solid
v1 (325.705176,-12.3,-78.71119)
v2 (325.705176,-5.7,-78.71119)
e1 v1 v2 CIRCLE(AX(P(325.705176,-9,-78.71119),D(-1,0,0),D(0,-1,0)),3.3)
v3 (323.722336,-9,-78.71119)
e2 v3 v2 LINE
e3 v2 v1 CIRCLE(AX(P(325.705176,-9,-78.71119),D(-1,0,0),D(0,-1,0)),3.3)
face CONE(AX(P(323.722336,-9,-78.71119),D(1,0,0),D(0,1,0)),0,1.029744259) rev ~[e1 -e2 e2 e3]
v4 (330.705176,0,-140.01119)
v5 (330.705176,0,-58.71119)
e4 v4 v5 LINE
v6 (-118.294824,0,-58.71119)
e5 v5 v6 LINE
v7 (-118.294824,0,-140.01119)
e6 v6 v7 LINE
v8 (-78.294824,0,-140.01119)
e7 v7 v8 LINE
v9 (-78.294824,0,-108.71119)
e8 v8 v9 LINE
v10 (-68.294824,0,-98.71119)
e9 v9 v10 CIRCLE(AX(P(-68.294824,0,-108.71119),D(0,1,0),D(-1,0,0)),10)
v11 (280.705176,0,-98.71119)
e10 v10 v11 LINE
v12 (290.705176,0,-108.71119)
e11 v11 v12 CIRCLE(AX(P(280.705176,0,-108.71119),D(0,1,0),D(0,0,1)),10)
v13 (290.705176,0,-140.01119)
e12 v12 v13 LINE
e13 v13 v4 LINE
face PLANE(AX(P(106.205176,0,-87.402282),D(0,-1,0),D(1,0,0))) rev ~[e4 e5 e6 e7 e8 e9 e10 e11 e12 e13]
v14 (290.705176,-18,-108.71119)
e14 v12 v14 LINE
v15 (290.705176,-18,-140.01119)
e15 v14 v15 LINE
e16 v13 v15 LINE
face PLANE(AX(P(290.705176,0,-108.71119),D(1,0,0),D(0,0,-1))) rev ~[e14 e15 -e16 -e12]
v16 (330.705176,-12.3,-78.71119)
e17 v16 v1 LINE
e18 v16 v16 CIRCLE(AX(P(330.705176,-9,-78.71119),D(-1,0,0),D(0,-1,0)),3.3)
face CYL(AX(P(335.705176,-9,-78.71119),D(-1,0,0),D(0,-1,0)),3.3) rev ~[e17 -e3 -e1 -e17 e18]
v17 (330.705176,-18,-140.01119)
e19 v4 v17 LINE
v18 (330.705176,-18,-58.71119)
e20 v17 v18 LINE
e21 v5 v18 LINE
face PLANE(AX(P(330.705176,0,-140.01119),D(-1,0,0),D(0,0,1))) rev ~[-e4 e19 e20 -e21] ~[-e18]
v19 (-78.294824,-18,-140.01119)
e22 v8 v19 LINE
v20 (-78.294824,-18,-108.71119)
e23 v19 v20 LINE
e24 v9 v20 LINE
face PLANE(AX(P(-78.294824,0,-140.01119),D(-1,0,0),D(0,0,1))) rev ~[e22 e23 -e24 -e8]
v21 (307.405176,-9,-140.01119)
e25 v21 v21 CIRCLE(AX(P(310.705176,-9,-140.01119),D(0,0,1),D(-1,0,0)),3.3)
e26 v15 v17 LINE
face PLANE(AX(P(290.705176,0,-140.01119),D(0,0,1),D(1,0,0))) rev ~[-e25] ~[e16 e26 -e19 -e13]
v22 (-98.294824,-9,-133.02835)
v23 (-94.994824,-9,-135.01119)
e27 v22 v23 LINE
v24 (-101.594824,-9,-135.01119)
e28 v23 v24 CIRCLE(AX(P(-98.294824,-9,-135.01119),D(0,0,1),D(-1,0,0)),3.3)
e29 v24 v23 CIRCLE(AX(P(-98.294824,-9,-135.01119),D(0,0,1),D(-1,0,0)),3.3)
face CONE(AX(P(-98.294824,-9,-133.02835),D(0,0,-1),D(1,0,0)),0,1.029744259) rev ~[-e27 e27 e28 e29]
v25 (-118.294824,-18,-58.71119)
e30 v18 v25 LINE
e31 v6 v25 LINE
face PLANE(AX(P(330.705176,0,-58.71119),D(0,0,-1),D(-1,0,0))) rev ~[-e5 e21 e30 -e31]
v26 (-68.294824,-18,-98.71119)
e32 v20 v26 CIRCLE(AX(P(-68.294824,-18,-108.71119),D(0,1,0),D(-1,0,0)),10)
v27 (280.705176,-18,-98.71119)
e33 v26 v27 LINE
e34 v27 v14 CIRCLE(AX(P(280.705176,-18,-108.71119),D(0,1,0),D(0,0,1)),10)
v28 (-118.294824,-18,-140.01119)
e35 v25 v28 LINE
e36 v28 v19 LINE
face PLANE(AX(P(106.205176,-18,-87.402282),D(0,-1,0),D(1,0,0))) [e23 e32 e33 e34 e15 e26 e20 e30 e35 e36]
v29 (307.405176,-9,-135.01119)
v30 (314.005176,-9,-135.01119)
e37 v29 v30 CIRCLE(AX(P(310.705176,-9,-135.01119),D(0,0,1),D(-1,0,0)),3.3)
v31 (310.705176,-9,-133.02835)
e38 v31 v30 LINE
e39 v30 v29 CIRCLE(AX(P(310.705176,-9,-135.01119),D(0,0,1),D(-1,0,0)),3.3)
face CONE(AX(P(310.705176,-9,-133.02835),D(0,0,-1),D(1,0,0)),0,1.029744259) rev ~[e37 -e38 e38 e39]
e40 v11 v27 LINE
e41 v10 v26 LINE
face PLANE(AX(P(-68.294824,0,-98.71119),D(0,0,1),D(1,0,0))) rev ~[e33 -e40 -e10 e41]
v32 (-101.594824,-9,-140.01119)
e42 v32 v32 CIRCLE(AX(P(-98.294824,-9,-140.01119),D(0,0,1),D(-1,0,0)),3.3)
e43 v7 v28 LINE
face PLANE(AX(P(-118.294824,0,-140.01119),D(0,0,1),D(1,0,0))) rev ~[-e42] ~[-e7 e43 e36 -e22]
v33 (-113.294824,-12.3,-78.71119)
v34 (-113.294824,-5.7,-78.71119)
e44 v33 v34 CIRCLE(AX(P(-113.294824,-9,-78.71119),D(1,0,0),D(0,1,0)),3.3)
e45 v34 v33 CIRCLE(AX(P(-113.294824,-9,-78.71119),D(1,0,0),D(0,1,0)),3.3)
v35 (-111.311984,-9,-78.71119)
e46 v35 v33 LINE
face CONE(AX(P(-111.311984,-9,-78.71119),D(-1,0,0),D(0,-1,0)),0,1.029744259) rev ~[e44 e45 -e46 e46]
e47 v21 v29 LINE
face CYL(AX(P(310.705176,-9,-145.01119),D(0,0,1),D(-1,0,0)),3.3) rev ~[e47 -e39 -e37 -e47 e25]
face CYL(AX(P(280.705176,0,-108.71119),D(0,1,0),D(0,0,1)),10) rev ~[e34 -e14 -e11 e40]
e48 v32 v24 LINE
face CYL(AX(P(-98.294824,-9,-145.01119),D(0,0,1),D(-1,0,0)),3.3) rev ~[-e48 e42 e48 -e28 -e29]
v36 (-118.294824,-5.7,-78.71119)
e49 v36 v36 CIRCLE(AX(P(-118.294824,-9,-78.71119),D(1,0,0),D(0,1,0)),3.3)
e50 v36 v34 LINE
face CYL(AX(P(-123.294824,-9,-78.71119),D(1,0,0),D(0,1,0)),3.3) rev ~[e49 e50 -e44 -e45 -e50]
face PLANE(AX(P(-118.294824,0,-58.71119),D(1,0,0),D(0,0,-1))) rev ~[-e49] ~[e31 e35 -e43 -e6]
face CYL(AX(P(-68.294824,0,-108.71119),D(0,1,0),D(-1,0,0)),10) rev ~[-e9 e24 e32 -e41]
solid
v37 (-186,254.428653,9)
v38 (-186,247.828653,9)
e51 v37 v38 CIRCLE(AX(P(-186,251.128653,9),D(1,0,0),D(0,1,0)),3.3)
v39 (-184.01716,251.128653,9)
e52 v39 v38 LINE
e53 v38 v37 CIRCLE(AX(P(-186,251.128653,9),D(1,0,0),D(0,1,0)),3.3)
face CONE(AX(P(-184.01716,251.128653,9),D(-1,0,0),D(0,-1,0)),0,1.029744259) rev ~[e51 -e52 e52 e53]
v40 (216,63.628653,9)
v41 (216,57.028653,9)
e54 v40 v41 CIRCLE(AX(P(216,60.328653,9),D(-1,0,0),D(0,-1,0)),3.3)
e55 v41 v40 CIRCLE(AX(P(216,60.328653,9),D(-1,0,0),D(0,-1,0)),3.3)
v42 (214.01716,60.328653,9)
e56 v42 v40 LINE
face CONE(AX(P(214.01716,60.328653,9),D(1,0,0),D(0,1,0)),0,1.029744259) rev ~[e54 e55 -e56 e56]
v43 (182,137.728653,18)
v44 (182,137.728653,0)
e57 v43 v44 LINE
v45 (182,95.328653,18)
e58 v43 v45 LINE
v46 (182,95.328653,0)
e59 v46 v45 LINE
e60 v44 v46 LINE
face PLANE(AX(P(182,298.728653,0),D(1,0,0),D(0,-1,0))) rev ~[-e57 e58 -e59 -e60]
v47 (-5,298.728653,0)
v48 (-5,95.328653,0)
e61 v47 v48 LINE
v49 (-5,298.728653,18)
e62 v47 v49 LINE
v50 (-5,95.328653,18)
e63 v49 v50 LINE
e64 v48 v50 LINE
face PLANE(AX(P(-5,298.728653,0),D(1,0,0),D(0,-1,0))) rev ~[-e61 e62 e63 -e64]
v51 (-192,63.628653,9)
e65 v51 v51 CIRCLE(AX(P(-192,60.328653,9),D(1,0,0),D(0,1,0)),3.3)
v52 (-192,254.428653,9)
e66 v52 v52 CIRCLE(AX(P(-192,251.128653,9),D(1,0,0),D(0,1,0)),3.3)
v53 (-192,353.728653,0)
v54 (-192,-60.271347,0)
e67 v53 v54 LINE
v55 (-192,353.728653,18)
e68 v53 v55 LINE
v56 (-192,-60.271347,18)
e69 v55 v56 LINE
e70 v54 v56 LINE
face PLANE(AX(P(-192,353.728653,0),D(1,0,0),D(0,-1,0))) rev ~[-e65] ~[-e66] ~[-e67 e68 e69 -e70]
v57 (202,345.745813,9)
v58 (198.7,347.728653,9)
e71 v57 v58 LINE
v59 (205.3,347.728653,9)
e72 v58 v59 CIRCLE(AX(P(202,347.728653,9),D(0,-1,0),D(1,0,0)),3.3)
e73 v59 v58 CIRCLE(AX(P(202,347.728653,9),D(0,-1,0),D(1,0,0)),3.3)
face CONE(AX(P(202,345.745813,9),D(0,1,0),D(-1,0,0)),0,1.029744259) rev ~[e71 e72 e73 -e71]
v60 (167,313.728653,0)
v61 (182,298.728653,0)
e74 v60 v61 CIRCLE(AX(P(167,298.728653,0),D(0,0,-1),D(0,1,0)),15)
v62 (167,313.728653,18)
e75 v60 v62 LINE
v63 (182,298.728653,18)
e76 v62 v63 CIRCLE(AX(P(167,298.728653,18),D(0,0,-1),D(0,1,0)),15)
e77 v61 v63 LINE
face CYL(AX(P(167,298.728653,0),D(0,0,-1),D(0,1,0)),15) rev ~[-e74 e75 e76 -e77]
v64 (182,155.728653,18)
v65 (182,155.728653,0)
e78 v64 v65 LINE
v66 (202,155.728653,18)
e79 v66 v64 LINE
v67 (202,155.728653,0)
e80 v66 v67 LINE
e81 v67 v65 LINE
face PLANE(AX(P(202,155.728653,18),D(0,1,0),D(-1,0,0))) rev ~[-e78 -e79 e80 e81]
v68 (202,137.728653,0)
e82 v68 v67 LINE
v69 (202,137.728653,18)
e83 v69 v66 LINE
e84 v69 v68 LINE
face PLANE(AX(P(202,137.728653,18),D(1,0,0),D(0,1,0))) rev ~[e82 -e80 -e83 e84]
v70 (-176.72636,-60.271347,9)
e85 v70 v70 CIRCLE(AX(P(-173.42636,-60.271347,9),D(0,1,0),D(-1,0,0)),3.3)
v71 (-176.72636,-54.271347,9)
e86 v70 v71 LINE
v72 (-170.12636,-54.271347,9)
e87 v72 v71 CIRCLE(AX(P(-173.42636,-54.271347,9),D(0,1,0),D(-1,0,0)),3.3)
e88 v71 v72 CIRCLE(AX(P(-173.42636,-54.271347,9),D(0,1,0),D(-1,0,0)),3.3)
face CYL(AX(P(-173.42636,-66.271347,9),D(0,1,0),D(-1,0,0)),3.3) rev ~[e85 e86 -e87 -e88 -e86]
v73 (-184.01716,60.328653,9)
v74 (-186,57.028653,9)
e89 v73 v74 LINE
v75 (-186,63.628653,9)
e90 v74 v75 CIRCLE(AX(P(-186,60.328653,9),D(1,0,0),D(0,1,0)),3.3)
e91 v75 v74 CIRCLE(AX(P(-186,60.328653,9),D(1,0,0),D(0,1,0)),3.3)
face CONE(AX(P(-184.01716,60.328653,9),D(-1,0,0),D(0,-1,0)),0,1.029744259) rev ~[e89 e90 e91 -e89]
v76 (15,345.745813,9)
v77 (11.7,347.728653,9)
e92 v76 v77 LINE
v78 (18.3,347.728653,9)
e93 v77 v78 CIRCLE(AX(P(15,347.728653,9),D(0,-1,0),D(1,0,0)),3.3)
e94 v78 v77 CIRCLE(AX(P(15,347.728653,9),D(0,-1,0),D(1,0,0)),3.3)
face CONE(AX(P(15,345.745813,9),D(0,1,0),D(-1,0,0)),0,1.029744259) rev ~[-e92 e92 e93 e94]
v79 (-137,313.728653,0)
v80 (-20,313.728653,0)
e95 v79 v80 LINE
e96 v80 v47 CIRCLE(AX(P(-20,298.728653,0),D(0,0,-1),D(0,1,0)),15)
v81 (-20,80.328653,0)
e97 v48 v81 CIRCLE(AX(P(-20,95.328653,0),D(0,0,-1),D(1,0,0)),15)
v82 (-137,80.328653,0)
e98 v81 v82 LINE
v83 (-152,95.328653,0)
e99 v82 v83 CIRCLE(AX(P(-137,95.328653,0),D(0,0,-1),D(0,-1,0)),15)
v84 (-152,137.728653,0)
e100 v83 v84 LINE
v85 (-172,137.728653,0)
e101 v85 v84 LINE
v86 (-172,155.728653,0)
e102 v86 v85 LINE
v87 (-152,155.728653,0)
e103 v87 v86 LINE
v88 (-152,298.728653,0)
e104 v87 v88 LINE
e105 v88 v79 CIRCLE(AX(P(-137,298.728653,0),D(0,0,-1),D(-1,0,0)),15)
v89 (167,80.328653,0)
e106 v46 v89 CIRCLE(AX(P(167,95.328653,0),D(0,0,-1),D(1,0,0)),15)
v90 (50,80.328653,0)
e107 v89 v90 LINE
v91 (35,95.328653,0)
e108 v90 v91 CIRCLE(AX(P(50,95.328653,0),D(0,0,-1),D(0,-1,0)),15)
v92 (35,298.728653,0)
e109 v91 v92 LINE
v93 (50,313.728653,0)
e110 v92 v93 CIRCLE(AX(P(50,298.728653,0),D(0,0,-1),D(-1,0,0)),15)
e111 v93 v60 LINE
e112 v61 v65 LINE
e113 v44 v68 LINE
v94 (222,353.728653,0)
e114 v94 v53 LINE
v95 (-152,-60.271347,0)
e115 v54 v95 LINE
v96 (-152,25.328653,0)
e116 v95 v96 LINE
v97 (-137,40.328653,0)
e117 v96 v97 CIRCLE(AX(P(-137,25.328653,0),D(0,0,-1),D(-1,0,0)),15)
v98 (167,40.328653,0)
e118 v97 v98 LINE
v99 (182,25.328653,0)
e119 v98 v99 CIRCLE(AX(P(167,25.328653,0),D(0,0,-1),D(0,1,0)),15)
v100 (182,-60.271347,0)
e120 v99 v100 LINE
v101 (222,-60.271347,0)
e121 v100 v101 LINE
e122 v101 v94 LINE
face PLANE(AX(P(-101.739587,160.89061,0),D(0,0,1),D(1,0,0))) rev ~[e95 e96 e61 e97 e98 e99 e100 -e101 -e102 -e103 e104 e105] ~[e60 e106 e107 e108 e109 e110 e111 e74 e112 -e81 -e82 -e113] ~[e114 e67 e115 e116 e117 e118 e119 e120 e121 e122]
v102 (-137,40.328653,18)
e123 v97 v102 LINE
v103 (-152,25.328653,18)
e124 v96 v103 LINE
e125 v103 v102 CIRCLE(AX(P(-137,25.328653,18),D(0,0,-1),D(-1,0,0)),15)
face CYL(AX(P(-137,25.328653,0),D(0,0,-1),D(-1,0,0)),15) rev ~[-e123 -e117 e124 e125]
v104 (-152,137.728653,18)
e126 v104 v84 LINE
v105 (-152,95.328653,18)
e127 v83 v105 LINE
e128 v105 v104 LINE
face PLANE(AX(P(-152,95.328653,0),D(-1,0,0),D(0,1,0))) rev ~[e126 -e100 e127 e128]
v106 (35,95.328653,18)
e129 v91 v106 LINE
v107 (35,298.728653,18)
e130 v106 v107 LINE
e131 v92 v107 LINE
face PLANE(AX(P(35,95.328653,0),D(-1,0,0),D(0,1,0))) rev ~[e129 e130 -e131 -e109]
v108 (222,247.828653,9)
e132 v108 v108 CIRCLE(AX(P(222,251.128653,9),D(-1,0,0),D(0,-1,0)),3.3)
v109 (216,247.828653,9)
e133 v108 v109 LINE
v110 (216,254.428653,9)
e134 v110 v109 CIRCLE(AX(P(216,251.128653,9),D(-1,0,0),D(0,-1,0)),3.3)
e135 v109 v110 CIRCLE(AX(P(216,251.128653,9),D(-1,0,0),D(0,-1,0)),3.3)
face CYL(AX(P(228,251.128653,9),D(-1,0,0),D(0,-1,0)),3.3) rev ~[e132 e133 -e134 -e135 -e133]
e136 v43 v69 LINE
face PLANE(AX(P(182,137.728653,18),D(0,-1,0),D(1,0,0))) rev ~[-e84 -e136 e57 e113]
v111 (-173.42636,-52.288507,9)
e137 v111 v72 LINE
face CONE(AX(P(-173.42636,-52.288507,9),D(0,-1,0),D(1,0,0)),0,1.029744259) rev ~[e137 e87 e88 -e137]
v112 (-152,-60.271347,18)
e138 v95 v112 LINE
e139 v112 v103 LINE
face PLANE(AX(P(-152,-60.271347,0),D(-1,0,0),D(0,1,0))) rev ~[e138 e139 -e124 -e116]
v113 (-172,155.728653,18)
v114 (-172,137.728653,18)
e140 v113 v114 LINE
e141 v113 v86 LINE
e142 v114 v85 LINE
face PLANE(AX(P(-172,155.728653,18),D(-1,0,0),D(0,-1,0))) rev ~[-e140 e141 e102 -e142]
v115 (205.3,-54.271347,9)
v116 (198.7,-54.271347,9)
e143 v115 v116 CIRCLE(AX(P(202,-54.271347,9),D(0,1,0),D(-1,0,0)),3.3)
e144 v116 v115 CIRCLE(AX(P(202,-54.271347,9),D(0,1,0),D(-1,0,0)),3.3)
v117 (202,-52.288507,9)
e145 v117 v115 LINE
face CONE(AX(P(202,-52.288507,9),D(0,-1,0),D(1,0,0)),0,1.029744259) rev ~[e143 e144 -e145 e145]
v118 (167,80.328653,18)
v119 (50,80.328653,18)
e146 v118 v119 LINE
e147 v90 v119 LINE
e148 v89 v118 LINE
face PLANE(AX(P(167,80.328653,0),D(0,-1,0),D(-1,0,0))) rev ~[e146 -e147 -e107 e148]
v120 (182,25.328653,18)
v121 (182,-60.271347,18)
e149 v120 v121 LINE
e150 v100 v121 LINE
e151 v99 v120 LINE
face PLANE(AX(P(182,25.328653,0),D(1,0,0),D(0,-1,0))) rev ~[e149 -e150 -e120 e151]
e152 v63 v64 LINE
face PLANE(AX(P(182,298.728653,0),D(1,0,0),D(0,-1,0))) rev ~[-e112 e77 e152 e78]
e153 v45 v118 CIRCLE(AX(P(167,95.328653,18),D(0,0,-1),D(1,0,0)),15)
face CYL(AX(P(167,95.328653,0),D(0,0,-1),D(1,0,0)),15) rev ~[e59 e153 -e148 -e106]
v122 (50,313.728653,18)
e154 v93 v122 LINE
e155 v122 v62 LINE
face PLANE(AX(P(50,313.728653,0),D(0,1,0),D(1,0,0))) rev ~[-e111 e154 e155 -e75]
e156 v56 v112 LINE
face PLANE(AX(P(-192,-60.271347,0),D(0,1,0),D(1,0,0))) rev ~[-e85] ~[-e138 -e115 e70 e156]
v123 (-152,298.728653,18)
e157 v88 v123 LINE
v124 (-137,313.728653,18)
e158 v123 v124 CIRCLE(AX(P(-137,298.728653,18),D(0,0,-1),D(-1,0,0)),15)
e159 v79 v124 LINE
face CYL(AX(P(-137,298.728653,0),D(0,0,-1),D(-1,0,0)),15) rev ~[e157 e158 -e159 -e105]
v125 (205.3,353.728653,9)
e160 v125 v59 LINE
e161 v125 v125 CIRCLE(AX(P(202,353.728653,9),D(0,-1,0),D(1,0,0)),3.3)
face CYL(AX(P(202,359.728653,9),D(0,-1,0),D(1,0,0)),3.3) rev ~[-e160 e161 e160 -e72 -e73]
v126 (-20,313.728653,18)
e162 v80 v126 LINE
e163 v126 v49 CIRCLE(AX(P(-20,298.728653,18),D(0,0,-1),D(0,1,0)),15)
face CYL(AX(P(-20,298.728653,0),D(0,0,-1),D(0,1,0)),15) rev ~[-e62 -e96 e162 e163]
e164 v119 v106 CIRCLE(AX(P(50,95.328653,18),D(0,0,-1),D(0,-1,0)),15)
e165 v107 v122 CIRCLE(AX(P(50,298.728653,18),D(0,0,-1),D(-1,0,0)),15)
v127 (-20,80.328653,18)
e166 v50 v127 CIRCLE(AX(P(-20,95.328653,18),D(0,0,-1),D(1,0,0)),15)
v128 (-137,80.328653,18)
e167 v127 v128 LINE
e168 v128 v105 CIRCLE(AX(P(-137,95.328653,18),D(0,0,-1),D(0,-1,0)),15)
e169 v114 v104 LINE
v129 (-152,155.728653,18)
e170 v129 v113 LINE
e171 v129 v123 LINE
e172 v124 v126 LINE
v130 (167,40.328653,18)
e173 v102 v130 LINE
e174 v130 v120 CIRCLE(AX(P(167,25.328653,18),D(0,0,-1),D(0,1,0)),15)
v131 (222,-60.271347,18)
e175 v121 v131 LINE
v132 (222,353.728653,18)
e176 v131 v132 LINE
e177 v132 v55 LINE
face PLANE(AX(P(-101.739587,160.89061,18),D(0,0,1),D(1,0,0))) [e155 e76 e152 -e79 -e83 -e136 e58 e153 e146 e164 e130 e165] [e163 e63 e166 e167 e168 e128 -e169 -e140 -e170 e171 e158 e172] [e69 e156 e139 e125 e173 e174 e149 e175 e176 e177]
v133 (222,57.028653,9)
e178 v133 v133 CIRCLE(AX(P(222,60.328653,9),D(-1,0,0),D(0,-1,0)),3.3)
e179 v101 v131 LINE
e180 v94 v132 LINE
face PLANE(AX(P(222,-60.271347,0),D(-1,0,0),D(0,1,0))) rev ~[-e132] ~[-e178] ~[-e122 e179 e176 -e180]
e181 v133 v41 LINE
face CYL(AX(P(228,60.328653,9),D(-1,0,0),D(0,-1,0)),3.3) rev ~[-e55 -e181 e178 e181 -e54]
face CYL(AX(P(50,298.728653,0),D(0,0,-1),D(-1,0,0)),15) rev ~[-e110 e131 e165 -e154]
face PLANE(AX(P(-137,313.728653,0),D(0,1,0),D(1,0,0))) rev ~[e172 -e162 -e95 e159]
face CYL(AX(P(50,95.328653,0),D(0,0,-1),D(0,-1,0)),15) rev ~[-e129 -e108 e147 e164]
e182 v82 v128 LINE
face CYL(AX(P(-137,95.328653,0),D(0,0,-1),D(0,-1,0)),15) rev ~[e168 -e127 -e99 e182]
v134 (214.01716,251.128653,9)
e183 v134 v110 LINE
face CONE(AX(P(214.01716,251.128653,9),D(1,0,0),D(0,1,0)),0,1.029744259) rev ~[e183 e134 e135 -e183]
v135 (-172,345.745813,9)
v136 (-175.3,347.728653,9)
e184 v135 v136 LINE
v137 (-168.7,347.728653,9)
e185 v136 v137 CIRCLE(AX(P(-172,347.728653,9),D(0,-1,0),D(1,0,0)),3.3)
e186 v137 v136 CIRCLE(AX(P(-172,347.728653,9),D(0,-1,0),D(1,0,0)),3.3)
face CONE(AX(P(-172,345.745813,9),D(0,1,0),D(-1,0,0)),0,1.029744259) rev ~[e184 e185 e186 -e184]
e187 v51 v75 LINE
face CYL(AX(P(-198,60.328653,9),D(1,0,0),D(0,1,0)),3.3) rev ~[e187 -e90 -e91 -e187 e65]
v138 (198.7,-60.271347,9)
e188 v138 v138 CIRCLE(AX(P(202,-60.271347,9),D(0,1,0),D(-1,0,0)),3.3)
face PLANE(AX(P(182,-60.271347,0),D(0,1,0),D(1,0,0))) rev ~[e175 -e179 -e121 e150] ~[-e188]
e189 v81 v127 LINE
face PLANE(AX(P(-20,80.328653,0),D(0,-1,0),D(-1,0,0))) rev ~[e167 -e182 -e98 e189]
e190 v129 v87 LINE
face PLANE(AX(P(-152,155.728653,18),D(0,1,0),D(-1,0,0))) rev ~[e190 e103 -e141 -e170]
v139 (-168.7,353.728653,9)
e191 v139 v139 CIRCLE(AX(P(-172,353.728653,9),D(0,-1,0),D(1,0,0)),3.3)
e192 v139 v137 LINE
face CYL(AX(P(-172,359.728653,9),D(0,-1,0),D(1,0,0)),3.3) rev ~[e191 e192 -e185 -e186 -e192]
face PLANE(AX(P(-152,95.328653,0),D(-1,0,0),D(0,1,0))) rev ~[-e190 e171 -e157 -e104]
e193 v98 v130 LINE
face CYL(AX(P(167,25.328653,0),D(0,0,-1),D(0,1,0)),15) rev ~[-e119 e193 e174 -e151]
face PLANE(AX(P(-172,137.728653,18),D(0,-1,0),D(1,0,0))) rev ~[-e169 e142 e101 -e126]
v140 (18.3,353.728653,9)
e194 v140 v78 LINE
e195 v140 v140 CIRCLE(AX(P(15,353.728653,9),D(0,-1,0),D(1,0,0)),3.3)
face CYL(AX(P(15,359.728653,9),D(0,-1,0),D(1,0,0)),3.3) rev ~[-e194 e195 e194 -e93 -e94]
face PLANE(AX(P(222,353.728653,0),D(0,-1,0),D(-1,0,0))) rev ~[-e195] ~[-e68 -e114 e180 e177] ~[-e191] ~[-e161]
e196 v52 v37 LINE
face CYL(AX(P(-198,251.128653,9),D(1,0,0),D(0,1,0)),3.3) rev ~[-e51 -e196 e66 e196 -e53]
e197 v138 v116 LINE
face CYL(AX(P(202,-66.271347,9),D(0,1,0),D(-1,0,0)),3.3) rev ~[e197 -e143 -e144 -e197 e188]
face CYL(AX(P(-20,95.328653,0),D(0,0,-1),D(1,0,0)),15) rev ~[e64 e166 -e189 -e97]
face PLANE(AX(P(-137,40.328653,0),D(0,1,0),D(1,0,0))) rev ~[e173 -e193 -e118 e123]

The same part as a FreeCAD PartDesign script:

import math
import FreeCAD as App
import Part
import Sketcher

V = App.Vector


def add_polygon(sketch, points):
    """Adds a closed chain of lines whose ends are joined by coincident constraints."""
    first, n = sketch.GeometryCount, len(points)
    for a, b in zip(points, points[1:] + points[:1]):
        sketch.addGeometry(Part.LineSegment(App.Vector(*a, 0), App.Vector(*b, 0)), False)
    for i in range(n):
        sketch.addConstraint(Sketcher.Constraint("Coincident", first + i, 2, first + (i + 1) % n, 1))

doc = App.newDocument("Part")
params = doc.addObject("Spreadsheet::Sheet", "Params")
for row, (alias, value) in enumerate([
    ("sketch1_radius", "15 mm"),
    ("sketch1_width", "40 mm"),
    ("sketch1_width2", "304 mm"),
    ("sketch1_width3", "117 mm"),
    ("sketch1_height", "85.6 mm"),
    ("pad1_length", "18 mm"),
    ("sketch2_diameter", "6.6 mm"),
    ("hole_diameter", "6.6 mm"),
    ("hole_depth", "6 mm"),
    ("sketch3_diameter", "6.6 mm"),
    ("hole2_diameter", "6.6 mm"),
    ("hole2_depth", "6 mm"),
    ("sketch4_diameter", "6.6 mm"),
    ("hole3_diameter", "6.6 mm"),
    ("hole3_depth", "6 mm"),
    ("sketch5_diameter", "6.6 mm"),
    ("hole4_diameter", "6.6 mm"),
    ("hole4_depth", "6 mm"),
    ("sketch6_width", "20 mm"),
    ("sketch6_height", "18 mm"),
    ("pocket1_length", "18 mm"),
    ("sketch7_radius", "10 mm"),
    ("sketch7_width", "449 mm"),
    ("sketch7_width2", "40 mm"),
    ("sketch7_height", "81.3 mm"),
    ("sketch7_height2", "31.3 mm"),
    ("pad2_length", "18 mm"),
    ("sketch8_diameter", "6.6 mm"),
    ("hole5_diameter", "6.6 mm"),
    ("hole5_depth", "5 mm"),
    ("sketch9_diameter", "6.6 mm"),
    ("hole6_diameter", "6.6 mm"),
    ("hole6_depth", "5 mm"),
    ("sketch10_diameter", "6.6 mm"),
    ("hole7_diameter", "6.6 mm"),
    ("hole7_depth", "5 mm"),
    ("sketch11_diameter", "6.6 mm"),
    ("hole8_diameter", "6.6 mm"),
    ("hole8_depth", "5 mm"),
], start=1):
    params.set(f"A{row}", alias)
    params.set(f"B{row}", "=" + value)
    params.setAlias(f"B{row}", alias)

body = doc.addObject("PartDesign::Body", "Body")

# Sketch on XY plane
sketch1 = body.newObject("Sketcher::SketchObject", "Sketch")
sketch1.AttachmentSupport = (doc.getObject("XY_Plane"), [""])
sketch1.MapMode = "FlatFace"
sketch1.addGeometry([
    Part.LineSegment(V(-192, 353.728653, 0), V(-192, -60.271347, 0)),  # 0
    Part.LineSegment(V(-192, -60.271347, 0), V(-152, -60.271347, 0)),  # 1
    Part.LineSegment(V(-152, -60.271347, 0), V(-152, 25.328653, 0)),  # 2
    Part.ArcOfCircle(Part.Circle(V(-137, 25.328653, 0), V(0, 0, 1), 15), math.radians(90), math.radians(180)),  # 3
    Part.LineSegment(V(-137, 40.328653, 0), V(167, 40.328653, 0)),  # 4
    Part.ArcOfCircle(Part.Circle(V(167, 25.328653, 0), V(0, 0, 1), 15), math.radians(0), math.radians(90)),  # 5
    Part.LineSegment(V(182, 25.328653, 0), V(182, -60.271347, 0)),  # 6
    Part.LineSegment(V(182, -60.271347, 0), V(222, -60.271347, 0)),  # 7
    Part.LineSegment(V(222, -60.271347, 0), V(222, 353.728653, 0)),  # 8
    Part.LineSegment(V(222, 353.728653, 0), V(-192, 353.728653, 0)),  # 9
    Part.LineSegment(V(-137, 313.728653, 0), V(-20, 313.728653, 0)),  # 10
    Part.ArcOfCircle(Part.Circle(V(-20, 298.728653, 0), V(0, 0, 1), 15), math.radians(0), math.radians(90)),  # 11
    Part.LineSegment(V(-5, 298.728653, 0), V(-5, 95.328653, 0)),  # 12
    Part.ArcOfCircle(Part.Circle(V(-20, 95.328653, 0), V(0, 0, 1), 15), math.radians(-90), math.radians(0)),  # 13
    Part.LineSegment(V(-20, 80.328653, 0), V(-137, 80.328653, 0)),  # 14
    Part.ArcOfCircle(Part.Circle(V(-137, 95.328653, 0), V(0, 0, 1), 15), math.radians(180), math.radians(270)),  # 15
    Part.LineSegment(V(-152, 95.328653, 0), V(-152, 298.728653, 0)),  # 16
    Part.ArcOfCircle(Part.Circle(V(-137, 298.728653, 0), V(0, 0, 1), 15), math.radians(90), math.radians(180)),  # 17
    Part.LineSegment(V(35, 95.328653, 0), V(35, 298.728653, 0)),  # 18
    Part.ArcOfCircle(Part.Circle(V(50, 298.728653, 0), V(0, 0, 1), 15), math.radians(90), math.radians(180)),  # 19
    Part.LineSegment(V(50, 313.728653, 0), V(167, 313.728653, 0)),  # 20
    Part.ArcOfCircle(Part.Circle(V(167, 298.728653, 0), V(0, 0, 1), 15), math.radians(0), math.radians(90)),  # 21
    Part.LineSegment(V(182, 298.728653, 0), V(182, 95.328653, 0)),  # 22
    Part.ArcOfCircle(Part.Circle(V(167, 95.328653, 0), V(0, 0, 1), 15), math.radians(-90), math.radians(0)),  # 23
    Part.LineSegment(V(167, 80.328653, 0), V(50, 80.328653, 0)),  # 24
    Part.ArcOfCircle(Part.Circle(V(50, 95.328653, 0), V(0, 0, 1), 15), math.radians(180), math.radians(270)),  # 25
], False)
sketch1.addConstraint([
    Sketcher.Constraint("Coincident", 0, 2, 1, 1),
    Sketcher.Constraint("Coincident", 1, 2, 2, 1),
    Sketcher.Constraint("Tangent", 2, 2, 3, 2),
    Sketcher.Constraint("Tangent", 3, 1, 4, 1),
    Sketcher.Constraint("Tangent", 4, 2, 5, 2),
    Sketcher.Constraint("Tangent", 5, 1, 6, 1),
    Sketcher.Constraint("Coincident", 6, 2, 7, 1),
    Sketcher.Constraint("Coincident", 7, 2, 8, 1),
    Sketcher.Constraint("Coincident", 8, 2, 9, 1),
    Sketcher.Constraint("Coincident", 9, 2, 0, 1),
    Sketcher.Constraint("Tangent", 10, 2, 11, 2),
    Sketcher.Constraint("Tangent", 11, 1, 12, 1),
    Sketcher.Constraint("Tangent", 12, 2, 13, 2),
    Sketcher.Constraint("Tangent", 13, 1, 14, 1),
    Sketcher.Constraint("Tangent", 14, 2, 15, 2),
    Sketcher.Constraint("Tangent", 15, 1, 16, 1),
    Sketcher.Constraint("Tangent", 16, 2, 17, 2),
    Sketcher.Constraint("Tangent", 17, 1, 10, 1),
    Sketcher.Constraint("Tangent", 18, 2, 19, 2),
    Sketcher.Constraint("Tangent", 19, 1, 20, 1),
    Sketcher.Constraint("Tangent", 20, 2, 21, 2),
    Sketcher.Constraint("Tangent", 21, 1, 22, 1),
    Sketcher.Constraint("Tangent", 22, 2, 23, 2),
    Sketcher.Constraint("Tangent", 23, 1, 24, 1),
    Sketcher.Constraint("Tangent", 24, 2, 25, 2),
    Sketcher.Constraint("Tangent", 25, 1, 18, 1),
    Sketcher.Constraint("Vertical", 0),
    Sketcher.Constraint("Horizontal", 1),
    Sketcher.Constraint("Vertical", 2),
    Sketcher.Constraint("Horizontal", 4),
    Sketcher.Constraint("Vertical", 6),
    Sketcher.Constraint("Horizontal", 7),
    Sketcher.Constraint("Vertical", 8),
    Sketcher.Constraint("Horizontal", 9),
    Sketcher.Constraint("Horizontal", 10),
    Sketcher.Constraint("Vertical", 12),
    Sketcher.Constraint("Horizontal", 14),
    Sketcher.Constraint("Vertical", 16),
    Sketcher.Constraint("Vertical", 18),
    Sketcher.Constraint("Horizontal", 20),
    Sketcher.Constraint("Vertical", 22),
    Sketcher.Constraint("Horizontal", 24),
    Sketcher.Constraint("Equal", 3, 5),
    Sketcher.Constraint("Equal", 5, 11),
    Sketcher.Constraint("Equal", 11, 13),
    Sketcher.Constraint("Equal", 13, 15),
    Sketcher.Constraint("Equal", 15, 17),
    Sketcher.Constraint("Equal", 17, 19),
    Sketcher.Constraint("Equal", 19, 21),
    Sketcher.Constraint("Equal", 21, 23),
    Sketcher.Constraint("Equal", 23, 25),
    Sketcher.Constraint("Horizontal", 17, 3, 19, 3),
    Sketcher.Constraint("Horizontal", 15, 3, 23, 3),
    Sketcher.Constraint("Horizontal", 1, 2, 6, 2),
    Sketcher.Constraint("Vertical", 3, 3, 15, 3),
    Sketcher.Constraint("Vertical", 5, 3, 21, 3),
    Sketcher.Constraint("Equal", 1, 7),
    Sketcher.Constraint("Equal", 14, 20),
    Sketcher.Constraint("Equal", 9, 0),
    Sketcher.Constraint("Radius", 3, 15.0),
    Sketcher.Constraint("DistanceX", 1, 1, 1, 2, 40.0),
    Sketcher.Constraint("DistanceX", 4, 1, 4, 2, 304.0),
    Sketcher.Constraint("DistanceX", 10, 1, 10, 2, 117.0),
    Sketcher.Constraint("DistanceY", 2, 1, 2, 2, 85.6),
    Sketcher.Constraint("DistanceY", 12, 2, 12, 1, 203.4),
    Sketcher.Constraint("DistanceX", 3, 3, -1, 1, 137.0),
    Sketcher.Constraint("DistanceY", 3, 3, 13, 3, 70.0),
    Sketcher.Constraint("DistanceY", -1, 1, 3, 3, 25.328653),
])
sketch1.setExpression("Constraints[59]", "Params.sketch1_radius")
sketch1.setExpression("Constraints[60]", "Params.sketch1_width")
sketch1.setExpression("Constraints[61]", "Params.sketch1_width2")
sketch1.setExpression("Constraints[62]", "Params.sketch1_width3")
sketch1.setExpression("Constraints[63]", "Params.sketch1_height")
pad1 = body.newObject("PartDesign::Pad", "Pad")
pad1.Profile = sketch1
pad1.setExpression("Length", "Params.pad1_length")

# Sketch on XZ plane
sketch2 = body.newObject("Sketcher::SketchObject", "Sketch001")
sketch2.AttachmentSupport = (doc.getObject("XZ_Plane"), [""])
sketch2.MapMode = "FlatFace"
sketch2.AttachmentOffset = App.Placement(V(0, 0, 60.271347), App.Rotation())
sketch2.addGeometry([
    Part.Circle(V(202, 9, 0), V(0, 0, 1), 3.3),
    Part.Circle(V(-173.42636, 9, 0), V(0, 0, 1), 3.3),
], False)
sketch2.addConstraint([
    Sketcher.Constraint("Equal", 0, 1),
    Sketcher.Constraint("Horizontal", 0, 3, 1, 3),
    Sketcher.Constraint("Diameter", 0, 6.6),
    Sketcher.Constraint("DistanceX", -1, 1, 0, 3, 202.0),
    Sketcher.Constraint("DistanceY", -1, 1, 0, 3, 9.0),
    Sketcher.Constraint("DistanceX", 1, 3, -1, 1, 173.42636),
])
sketch2.setExpression("Constraints[2]", "Params.sketch2_diameter")
doc.recompute()
hole = body.newObject("PartDesign::Hole", "Hole")
hole.Profile = sketch2
hole.ThreadType = "None"
hole.setExpression("Diameter", "Params.hole_diameter")
hole.DepthType = "Dimension"
hole.setExpression("Depth", "Params.hole_depth")
hole.DrillPoint = "Angled"
hole.DrillPointAngle = 118

# Sketch on YZ plane
sketch3 = body.newObject("Sketcher::SketchObject", "Sketch002")
sketch3.AttachmentSupport = (doc.getObject("YZ_Plane"), [""])
sketch3.MapMode = "FlatFace"
sketch3.AttachmentOffset = App.Placement(V(0, 0, -192), App.Rotation())
sketch3.addGeometry([
    Part.Circle(V(60.328653, 9, 0), V(0, 0, 1), 3.3),
    Part.Circle(V(251.128653, 9, 0), V(0, 0, 1), 3.3),
], False)
sketch3.addConstraint([
    Sketcher.Constraint("Equal", 0, 1),
    Sketcher.Constraint("Horizontal", 0, 3, 1, 3),
    Sketcher.Constraint("Diameter", 0, 6.6),
    Sketcher.Constraint("DistanceY", -1, 1, 0, 3, 9.0),
    Sketcher.Constraint("DistanceX", 0, 3, 1, 3, 190.8),
    Sketcher.Constraint("DistanceX", -1, 1, 0, 3, 60.328653),
])
sketch3.setExpression("Constraints[2]", "Params.sketch3_diameter")
doc.recompute()
hole2 = body.newObject("PartDesign::Hole", "Hole001")
hole2.Profile = sketch3
hole2.ThreadType = "None"
hole2.setExpression("Diameter", "Params.hole2_diameter")
hole2.DepthType = "Dimension"
hole2.setExpression("Depth", "Params.hole2_depth")
hole2.DrillPoint = "Angled"
hole2.DrillPointAngle = 118
hole2.Reversed = True

# Sketch on XZ plane
sketch4 = body.newObject("Sketcher::SketchObject", "Sketch003")
sketch4.AttachmentSupport = (doc.getObject("XZ_Plane"), [""])
sketch4.MapMode = "FlatFace"
sketch4.AttachmentOffset = App.Placement(V(0, 0, -353.728653), App.Rotation())
sketch4.addGeometry([
    Part.Circle(V(-172, 9, 0), V(0, 0, 1), 3.3),
    Part.Circle(V(15, 9, 0), V(0, 0, 1), 3.3),
    Part.Circle(V(202, 9, 0), V(0, 0, 1), 3.3),
], False)
sketch4.addConstraint([
    Sketcher.Constraint("Equal", 0, 1),
    Sketcher.Constraint("Equal", 1, 2),
    Sketcher.Constraint("Horizontal", 0, 3, 1, 3),
    Sketcher.Constraint("Horizontal", 1, 3, 2, 3),
    Sketcher.Constraint("Diameter", 0, 6.6),
    Sketcher.Constraint("DistanceX", 0, 3, -1, 1, 172.0),
    Sketcher.Constraint("DistanceY", -1, 1, 0, 3, 9.0),
    Sketcher.Constraint("DistanceX", -1, 1, 1, 3, 15.0),
    Sketcher.Constraint("DistanceX", -1, 1, 2, 3, 202.0),
])
sketch4.setExpression("Constraints[4]", "Params.sketch4_diameter")
doc.recompute()
hole3 = body.newObject("PartDesign::Hole", "Hole002")
hole3.Profile = sketch4
hole3.ThreadType = "None"
hole3.setExpression("Diameter", "Params.hole3_diameter")
hole3.DepthType = "Dimension"
hole3.setExpression("Depth", "Params.hole3_depth")
hole3.DrillPoint = "Angled"
hole3.DrillPointAngle = 118
hole3.Reversed = True

# Sketch on YZ plane
sketch5 = body.newObject("Sketcher::SketchObject", "Sketch004")
sketch5.AttachmentSupport = (doc.getObject("YZ_Plane"), [""])
sketch5.MapMode = "FlatFace"
sketch5.AttachmentOffset = App.Placement(V(0, 0, 222), App.Rotation())
sketch5.addGeometry([
    Part.Circle(V(60.328653, 9, 0), V(0, 0, 1), 3.3),
    Part.Circle(V(251.128653, 9, 0), V(0, 0, 1), 3.3),
], False)
sketch5.addConstraint([
    Sketcher.Constraint("Equal", 0, 1),
    Sketcher.Constraint("Horizontal", 0, 3, 1, 3),
    Sketcher.Constraint("Diameter", 0, 6.6),
    Sketcher.Constraint("DistanceY", -1, 1, 0, 3, 9.0),
    Sketcher.Constraint("DistanceX", 0, 3, 1, 3, 190.8),
    Sketcher.Constraint("DistanceX", -1, 1, 0, 3, 60.328653),
])
sketch5.setExpression("Constraints[2]", "Params.sketch5_diameter")
doc.recompute()
hole4 = body.newObject("PartDesign::Hole", "Hole003")
hole4.Profile = sketch5
hole4.ThreadType = "None"
hole4.setExpression("Diameter", "Params.hole4_diameter")
hole4.DepthType = "Dimension"
hole4.setExpression("Depth", "Params.hole4_depth")
hole4.DrillPoint = "Angled"
hole4.DrillPointAngle = 118
body2 = doc.addObject("PartDesign::Body", "Body001")
doc.recompute()

body.Placement = App.Placement(V(0, 371.728653, -335.728653), App.Rotation(V(1, 0, 0), 90))
boolean = body2.newObject("PartDesign::Boolean", "Boolean")
boolean.Type = "Fuse"
boolean.addObjects([body])
body3 = doc.addObject("PartDesign::Body", "Body002")
doc.recompute()

body2.Placement = App.Placement(V(0, 335.728653, 371.728653), App.Rotation(V(1, 0, 0), 270))
boolean2 = body3.newObject("PartDesign::Boolean", "Boolean001")
boolean2.Type = "Fuse"
boolean2.addObjects([body2])

# Sketch on XY plane
sketch6 = body3.newObject("Sketcher::SketchObject", "Sketch005")
sketch6.AttachmentSupport = (doc.getObject("XY_Plane002"), [""])
sketch6.MapMode = "FlatFace"
sketch6.AttachmentOffset = App.Placement(V(0, 0, 18), App.Rotation())
add_polygon(sketch6, [(-172, 155.728653), (-172, 137.728653), (-152, 137.728653), (-152, 155.728653)])  # lines 0-3
add_polygon(sketch6, [(202, 137.728653), (202, 155.728653), (182, 155.728653), (182, 137.728653)])  # lines 4-7
sketch6.addConstraint([
    Sketcher.Constraint("Vertical", 0),
    Sketcher.Constraint("Horizontal", 1),
    Sketcher.Constraint("Vertical", 2),
    Sketcher.Constraint("Horizontal", 3),
    Sketcher.Constraint("Vertical", 4),
    Sketcher.Constraint("Horizontal", 5),
    Sketcher.Constraint("Vertical", 6),
    Sketcher.Constraint("Horizontal", 7),
    Sketcher.Constraint("Horizontal", 3, 2, 4, 2),
    Sketcher.Constraint("Horizontal", 1, 2, 6, 2),
    Sketcher.Constraint("Equal", 3, 5),
    Sketcher.Constraint("DistanceX", 1, 1, 1, 2, 20.0),
    Sketcher.Constraint("DistanceY", 0, 2, 0, 1, 18.0),
    Sketcher.Constraint("DistanceX", 0, 2, -1, 1, 172.0),
    Sketcher.Constraint("DistanceX", -1, 1, 4, 2, 202.0),
    Sketcher.Constraint("DistanceY", -1, 1, 0, 2, 137.728653),
])
sketch6.setExpression("Constraints[19]", "Params.sketch6_width")
sketch6.setExpression("Constraints[20]", "Params.sketch6_height")
pocket1 = body3.newObject("PartDesign::Pocket", "Pocket")
pocket1.Profile = sketch6
pocket1.setExpression("Length", "Params.pocket1_length")
body4 = doc.addObject("PartDesign::Body", "Body003")

# Sketch on XZ plane
sketch7 = body4.newObject("Sketcher::SketchObject", "Sketch006")
sketch7.AttachmentSupport = (doc.getObject("XZ_Plane003"), [""])
sketch7.MapMode = "FlatFace"
sketch7.addGeometry([
    Part.LineSegment(V(330.705176, -140.01119, 0), V(330.705176, -58.71119, 0)),  # 0
    Part.LineSegment(V(330.705176, -58.71119, 0), V(-118.294824, -58.71119, 0)),  # 1
    Part.LineSegment(V(-118.294824, -58.71119, 0), V(-118.294824, -140.01119, 0)),  # 2
    Part.LineSegment(V(-118.294824, -140.01119, 0), V(-78.294824, -140.01119, 0)),  # 3
    Part.LineSegment(V(-78.294824, -140.01119, 0), V(-78.294824, -108.71119, 0)),  # 4
    Part.ArcOfCircle(Part.Circle(V(-68.294824, -108.71119, 0), V(0, 0, 1), 10), math.radians(90), math.radians(180)),  # 5
    Part.LineSegment(V(-68.294824, -98.71119, 0), V(280.705176, -98.71119, 0)),  # 6
    Part.ArcOfCircle(Part.Circle(V(280.705176, -108.71119, 0), V(0, 0, 1), 10), math.radians(0), math.radians(90)),  # 7
    Part.LineSegment(V(290.705176, -108.71119, 0), V(290.705176, -140.01119, 0)),  # 8
    Part.LineSegment(V(290.705176, -140.01119, 0), V(330.705176, -140.01119, 0)),  # 9
], False)
sketch7.addConstraint([
    Sketcher.Constraint("Coincident", 0, 2, 1, 1),
    Sketcher.Constraint("Coincident", 1, 2, 2, 1),
    Sketcher.Constraint("Coincident", 2, 2, 3, 1),
    Sketcher.Constraint("Coincident", 3, 2, 4, 1),
    Sketcher.Constraint("Tangent", 4, 2, 5, 2),
    Sketcher.Constraint("Tangent", 5, 1, 6, 1),
    Sketcher.Constraint("Tangent", 6, 2, 7, 2),
    Sketcher.Constraint("Tangent", 7, 1, 8, 1),
    Sketcher.Constraint("Coincident", 8, 2, 9, 1),
    Sketcher.Constraint("Coincident", 9, 2, 0, 1),
    Sketcher.Constraint("Vertical", 0),
    Sketcher.Constraint("Horizontal", 1),
    Sketcher.Constraint("Vertical", 2),
    Sketcher.Constraint("Horizontal", 3),
    Sketcher.Constraint("Vertical", 4),
    Sketcher.Constraint("Horizontal", 6),
    Sketcher.Constraint("Vertical", 8),
    Sketcher.Constraint("Horizontal", 9),
    Sketcher.Constraint("Equal", 5, 7),
    Sketcher.Constraint("Horizontal", 3, 2, 8, 2),
    Sketcher.Constraint("Equal", 3, 9),
    Sketcher.Constraint("Radius", 5, 10.0),
    Sketcher.Constraint("DistanceX", 1, 2, 1, 1, 449.0),
    Sketcher.Constraint("DistanceX", 3, 1, 3, 2, 40.0),
    Sketcher.Constraint("DistanceY", 0, 1, 0, 2, 81.3),
    Sketcher.Constraint("DistanceY", 4, 1, 4, 2, 31.3),
    Sketcher.Constraint("DistanceY", 5, 3, -1, 1, 108.71119),
    Sketcher.Constraint("DistanceX", 5, 3, -1, 1, 68.294824),
])
sketch7.setExpression("Constraints[21]", "Params.sketch7_radius")
sketch7.setExpression("Constraints[22]", "Params.sketch7_width")
sketch7.setExpression("Constraints[23]", "Params.sketch7_width2")
sketch7.setExpression("Constraints[24]", "Params.sketch7_height")
sketch7.setExpression("Constraints[25]", "Params.sketch7_height2")
pad2 = body4.newObject("PartDesign::Pad", "Pad001")
pad2.Profile = sketch7
pad2.setExpression("Length", "Params.pad2_length")

# Sketch on XY plane
sketch8 = body4.newObject("Sketcher::SketchObject", "Sketch007")
sketch8.AttachmentSupport = (doc.getObject("XY_Plane003"), [""])
sketch8.MapMode = "FlatFace"
sketch8.AttachmentOffset = App.Placement(V(0, 0, -140.01119), App.Rotation())
sketch8.addGeometry(Part.Circle(V(-98.294824, -9, 0), V(0, 0, 1), 3.3), False)
sketch8.addConstraint([
    Sketcher.Constraint("Diameter", 0, 6.6),
    Sketcher.Constraint("DistanceY", 0, 3, -1, 1, 9.0),
    Sketcher.Constraint("DistanceX", 0, 3, -1, 1, 98.294824),
])
sketch8.setExpression("Constraints[0]", "Params.sketch8_diameter")
doc.recompute()
hole5 = body4.newObject("PartDesign::Hole", "Hole004")
hole5.Profile = sketch8
hole5.ThreadType = "None"
hole5.setExpression("Diameter", "Params.hole5_diameter")
hole5.DepthType = "Dimension"
hole5.setExpression("Depth", "Params.hole5_depth")
hole5.DrillPoint = "Angled"
hole5.DrillPointAngle = 118
hole5.Reversed = True

# Sketch on YZ plane
sketch9 = body4.newObject("Sketcher::SketchObject", "Sketch008")
sketch9.AttachmentSupport = (doc.getObject("YZ_Plane003"), [""])
sketch9.MapMode = "FlatFace"
sketch9.AttachmentOffset = App.Placement(V(0, 0, -118.294824), App.Rotation())
sketch9.addGeometry(Part.Circle(V(-9, -78.71119, 0), V(0, 0, 1), 3.3), False)
sketch9.addConstraint([
    Sketcher.Constraint("Diameter", 0, 6.6),
    Sketcher.Constraint("DistanceX", 0, 3, -1, 1, 9.0),
    Sketcher.Constraint("DistanceY", 0, 3, -1, 1, 78.71119),
])
sketch9.setExpression("Constraints[0]", "Params.sketch9_diameter")
doc.recompute()
hole6 = body4.newObject("PartDesign::Hole", "Hole005")
hole6.Profile = sketch9
hole6.ThreadType = "None"
hole6.setExpression("Diameter", "Params.hole6_diameter")
hole6.DepthType = "Dimension"
hole6.setExpression("Depth", "Params.hole6_depth")
hole6.DrillPoint = "Angled"
hole6.DrillPointAngle = 118
hole6.Reversed = True

# Sketch on YZ plane
sketch10 = body4.newObject("Sketcher::SketchObject", "Sketch009")
sketch10.AttachmentSupport = (doc.getObject("YZ_Plane003"), [""])
sketch10.MapMode = "FlatFace"
sketch10.AttachmentOffset = App.Placement(V(0, 0, 330.705176), App.Rotation())
sketch10.addGeometry(Part.Circle(V(-9, -78.71119, 0), V(0, 0, 1), 3.3), False)
sketch10.addConstraint([
    Sketcher.Constraint("Diameter", 0, 6.6),
    Sketcher.Constraint("DistanceX", 0, 3, -1, 1, 9.0),
    Sketcher.Constraint("DistanceY", 0, 3, -1, 1, 78.71119),
])
sketch10.setExpression("Constraints[0]", "Params.sketch10_diameter")
doc.recompute()
hole7 = body4.newObject("PartDesign::Hole", "Hole006")
hole7.Profile = sketch10
hole7.ThreadType = "None"
hole7.setExpression("Diameter", "Params.hole7_diameter")
hole7.DepthType = "Dimension"
hole7.setExpression("Depth", "Params.hole7_depth")
hole7.DrillPoint = "Angled"
hole7.DrillPointAngle = 118

# Sketch on XY plane
sketch11 = body4.newObject("Sketcher::SketchObject", "Sketch010")
sketch11.AttachmentSupport = (doc.getObject("XY_Plane003"), [""])
sketch11.MapMode = "FlatFace"
sketch11.AttachmentOffset = App.Placement(V(0, 0, -140.01119), App.Rotation())
sketch11.addGeometry(Part.Circle(V(310.705176, -9, 0), V(0, 0, 1), 3.3), False)
sketch11.addConstraint([
    Sketcher.Constraint("Diameter", 0, 6.6),
    Sketcher.Constraint("DistanceY", 0, 3, -1, 1, 9.0),
    Sketcher.Constraint("DistanceX", -1, 1, 0, 3, 310.705176),
])
sketch11.setExpression("Constraints[0]", "Params.sketch11_diameter")
doc.recompute()
hole8 = body4.newObject("PartDesign::Hole", "Hole007")
hole8.Profile = sketch11
hole8.ThreadType = "None"
hole8.setExpression("Diameter", "Params.hole8_diameter")
hole8.DepthType = "Dimension"
hole8.setExpression("Depth", "Params.hole8_depth")
hole8.DrillPoint = "Angled"
hole8.DrillPointAngle = 118
hole8.Reversed = True

doc.recompute()
